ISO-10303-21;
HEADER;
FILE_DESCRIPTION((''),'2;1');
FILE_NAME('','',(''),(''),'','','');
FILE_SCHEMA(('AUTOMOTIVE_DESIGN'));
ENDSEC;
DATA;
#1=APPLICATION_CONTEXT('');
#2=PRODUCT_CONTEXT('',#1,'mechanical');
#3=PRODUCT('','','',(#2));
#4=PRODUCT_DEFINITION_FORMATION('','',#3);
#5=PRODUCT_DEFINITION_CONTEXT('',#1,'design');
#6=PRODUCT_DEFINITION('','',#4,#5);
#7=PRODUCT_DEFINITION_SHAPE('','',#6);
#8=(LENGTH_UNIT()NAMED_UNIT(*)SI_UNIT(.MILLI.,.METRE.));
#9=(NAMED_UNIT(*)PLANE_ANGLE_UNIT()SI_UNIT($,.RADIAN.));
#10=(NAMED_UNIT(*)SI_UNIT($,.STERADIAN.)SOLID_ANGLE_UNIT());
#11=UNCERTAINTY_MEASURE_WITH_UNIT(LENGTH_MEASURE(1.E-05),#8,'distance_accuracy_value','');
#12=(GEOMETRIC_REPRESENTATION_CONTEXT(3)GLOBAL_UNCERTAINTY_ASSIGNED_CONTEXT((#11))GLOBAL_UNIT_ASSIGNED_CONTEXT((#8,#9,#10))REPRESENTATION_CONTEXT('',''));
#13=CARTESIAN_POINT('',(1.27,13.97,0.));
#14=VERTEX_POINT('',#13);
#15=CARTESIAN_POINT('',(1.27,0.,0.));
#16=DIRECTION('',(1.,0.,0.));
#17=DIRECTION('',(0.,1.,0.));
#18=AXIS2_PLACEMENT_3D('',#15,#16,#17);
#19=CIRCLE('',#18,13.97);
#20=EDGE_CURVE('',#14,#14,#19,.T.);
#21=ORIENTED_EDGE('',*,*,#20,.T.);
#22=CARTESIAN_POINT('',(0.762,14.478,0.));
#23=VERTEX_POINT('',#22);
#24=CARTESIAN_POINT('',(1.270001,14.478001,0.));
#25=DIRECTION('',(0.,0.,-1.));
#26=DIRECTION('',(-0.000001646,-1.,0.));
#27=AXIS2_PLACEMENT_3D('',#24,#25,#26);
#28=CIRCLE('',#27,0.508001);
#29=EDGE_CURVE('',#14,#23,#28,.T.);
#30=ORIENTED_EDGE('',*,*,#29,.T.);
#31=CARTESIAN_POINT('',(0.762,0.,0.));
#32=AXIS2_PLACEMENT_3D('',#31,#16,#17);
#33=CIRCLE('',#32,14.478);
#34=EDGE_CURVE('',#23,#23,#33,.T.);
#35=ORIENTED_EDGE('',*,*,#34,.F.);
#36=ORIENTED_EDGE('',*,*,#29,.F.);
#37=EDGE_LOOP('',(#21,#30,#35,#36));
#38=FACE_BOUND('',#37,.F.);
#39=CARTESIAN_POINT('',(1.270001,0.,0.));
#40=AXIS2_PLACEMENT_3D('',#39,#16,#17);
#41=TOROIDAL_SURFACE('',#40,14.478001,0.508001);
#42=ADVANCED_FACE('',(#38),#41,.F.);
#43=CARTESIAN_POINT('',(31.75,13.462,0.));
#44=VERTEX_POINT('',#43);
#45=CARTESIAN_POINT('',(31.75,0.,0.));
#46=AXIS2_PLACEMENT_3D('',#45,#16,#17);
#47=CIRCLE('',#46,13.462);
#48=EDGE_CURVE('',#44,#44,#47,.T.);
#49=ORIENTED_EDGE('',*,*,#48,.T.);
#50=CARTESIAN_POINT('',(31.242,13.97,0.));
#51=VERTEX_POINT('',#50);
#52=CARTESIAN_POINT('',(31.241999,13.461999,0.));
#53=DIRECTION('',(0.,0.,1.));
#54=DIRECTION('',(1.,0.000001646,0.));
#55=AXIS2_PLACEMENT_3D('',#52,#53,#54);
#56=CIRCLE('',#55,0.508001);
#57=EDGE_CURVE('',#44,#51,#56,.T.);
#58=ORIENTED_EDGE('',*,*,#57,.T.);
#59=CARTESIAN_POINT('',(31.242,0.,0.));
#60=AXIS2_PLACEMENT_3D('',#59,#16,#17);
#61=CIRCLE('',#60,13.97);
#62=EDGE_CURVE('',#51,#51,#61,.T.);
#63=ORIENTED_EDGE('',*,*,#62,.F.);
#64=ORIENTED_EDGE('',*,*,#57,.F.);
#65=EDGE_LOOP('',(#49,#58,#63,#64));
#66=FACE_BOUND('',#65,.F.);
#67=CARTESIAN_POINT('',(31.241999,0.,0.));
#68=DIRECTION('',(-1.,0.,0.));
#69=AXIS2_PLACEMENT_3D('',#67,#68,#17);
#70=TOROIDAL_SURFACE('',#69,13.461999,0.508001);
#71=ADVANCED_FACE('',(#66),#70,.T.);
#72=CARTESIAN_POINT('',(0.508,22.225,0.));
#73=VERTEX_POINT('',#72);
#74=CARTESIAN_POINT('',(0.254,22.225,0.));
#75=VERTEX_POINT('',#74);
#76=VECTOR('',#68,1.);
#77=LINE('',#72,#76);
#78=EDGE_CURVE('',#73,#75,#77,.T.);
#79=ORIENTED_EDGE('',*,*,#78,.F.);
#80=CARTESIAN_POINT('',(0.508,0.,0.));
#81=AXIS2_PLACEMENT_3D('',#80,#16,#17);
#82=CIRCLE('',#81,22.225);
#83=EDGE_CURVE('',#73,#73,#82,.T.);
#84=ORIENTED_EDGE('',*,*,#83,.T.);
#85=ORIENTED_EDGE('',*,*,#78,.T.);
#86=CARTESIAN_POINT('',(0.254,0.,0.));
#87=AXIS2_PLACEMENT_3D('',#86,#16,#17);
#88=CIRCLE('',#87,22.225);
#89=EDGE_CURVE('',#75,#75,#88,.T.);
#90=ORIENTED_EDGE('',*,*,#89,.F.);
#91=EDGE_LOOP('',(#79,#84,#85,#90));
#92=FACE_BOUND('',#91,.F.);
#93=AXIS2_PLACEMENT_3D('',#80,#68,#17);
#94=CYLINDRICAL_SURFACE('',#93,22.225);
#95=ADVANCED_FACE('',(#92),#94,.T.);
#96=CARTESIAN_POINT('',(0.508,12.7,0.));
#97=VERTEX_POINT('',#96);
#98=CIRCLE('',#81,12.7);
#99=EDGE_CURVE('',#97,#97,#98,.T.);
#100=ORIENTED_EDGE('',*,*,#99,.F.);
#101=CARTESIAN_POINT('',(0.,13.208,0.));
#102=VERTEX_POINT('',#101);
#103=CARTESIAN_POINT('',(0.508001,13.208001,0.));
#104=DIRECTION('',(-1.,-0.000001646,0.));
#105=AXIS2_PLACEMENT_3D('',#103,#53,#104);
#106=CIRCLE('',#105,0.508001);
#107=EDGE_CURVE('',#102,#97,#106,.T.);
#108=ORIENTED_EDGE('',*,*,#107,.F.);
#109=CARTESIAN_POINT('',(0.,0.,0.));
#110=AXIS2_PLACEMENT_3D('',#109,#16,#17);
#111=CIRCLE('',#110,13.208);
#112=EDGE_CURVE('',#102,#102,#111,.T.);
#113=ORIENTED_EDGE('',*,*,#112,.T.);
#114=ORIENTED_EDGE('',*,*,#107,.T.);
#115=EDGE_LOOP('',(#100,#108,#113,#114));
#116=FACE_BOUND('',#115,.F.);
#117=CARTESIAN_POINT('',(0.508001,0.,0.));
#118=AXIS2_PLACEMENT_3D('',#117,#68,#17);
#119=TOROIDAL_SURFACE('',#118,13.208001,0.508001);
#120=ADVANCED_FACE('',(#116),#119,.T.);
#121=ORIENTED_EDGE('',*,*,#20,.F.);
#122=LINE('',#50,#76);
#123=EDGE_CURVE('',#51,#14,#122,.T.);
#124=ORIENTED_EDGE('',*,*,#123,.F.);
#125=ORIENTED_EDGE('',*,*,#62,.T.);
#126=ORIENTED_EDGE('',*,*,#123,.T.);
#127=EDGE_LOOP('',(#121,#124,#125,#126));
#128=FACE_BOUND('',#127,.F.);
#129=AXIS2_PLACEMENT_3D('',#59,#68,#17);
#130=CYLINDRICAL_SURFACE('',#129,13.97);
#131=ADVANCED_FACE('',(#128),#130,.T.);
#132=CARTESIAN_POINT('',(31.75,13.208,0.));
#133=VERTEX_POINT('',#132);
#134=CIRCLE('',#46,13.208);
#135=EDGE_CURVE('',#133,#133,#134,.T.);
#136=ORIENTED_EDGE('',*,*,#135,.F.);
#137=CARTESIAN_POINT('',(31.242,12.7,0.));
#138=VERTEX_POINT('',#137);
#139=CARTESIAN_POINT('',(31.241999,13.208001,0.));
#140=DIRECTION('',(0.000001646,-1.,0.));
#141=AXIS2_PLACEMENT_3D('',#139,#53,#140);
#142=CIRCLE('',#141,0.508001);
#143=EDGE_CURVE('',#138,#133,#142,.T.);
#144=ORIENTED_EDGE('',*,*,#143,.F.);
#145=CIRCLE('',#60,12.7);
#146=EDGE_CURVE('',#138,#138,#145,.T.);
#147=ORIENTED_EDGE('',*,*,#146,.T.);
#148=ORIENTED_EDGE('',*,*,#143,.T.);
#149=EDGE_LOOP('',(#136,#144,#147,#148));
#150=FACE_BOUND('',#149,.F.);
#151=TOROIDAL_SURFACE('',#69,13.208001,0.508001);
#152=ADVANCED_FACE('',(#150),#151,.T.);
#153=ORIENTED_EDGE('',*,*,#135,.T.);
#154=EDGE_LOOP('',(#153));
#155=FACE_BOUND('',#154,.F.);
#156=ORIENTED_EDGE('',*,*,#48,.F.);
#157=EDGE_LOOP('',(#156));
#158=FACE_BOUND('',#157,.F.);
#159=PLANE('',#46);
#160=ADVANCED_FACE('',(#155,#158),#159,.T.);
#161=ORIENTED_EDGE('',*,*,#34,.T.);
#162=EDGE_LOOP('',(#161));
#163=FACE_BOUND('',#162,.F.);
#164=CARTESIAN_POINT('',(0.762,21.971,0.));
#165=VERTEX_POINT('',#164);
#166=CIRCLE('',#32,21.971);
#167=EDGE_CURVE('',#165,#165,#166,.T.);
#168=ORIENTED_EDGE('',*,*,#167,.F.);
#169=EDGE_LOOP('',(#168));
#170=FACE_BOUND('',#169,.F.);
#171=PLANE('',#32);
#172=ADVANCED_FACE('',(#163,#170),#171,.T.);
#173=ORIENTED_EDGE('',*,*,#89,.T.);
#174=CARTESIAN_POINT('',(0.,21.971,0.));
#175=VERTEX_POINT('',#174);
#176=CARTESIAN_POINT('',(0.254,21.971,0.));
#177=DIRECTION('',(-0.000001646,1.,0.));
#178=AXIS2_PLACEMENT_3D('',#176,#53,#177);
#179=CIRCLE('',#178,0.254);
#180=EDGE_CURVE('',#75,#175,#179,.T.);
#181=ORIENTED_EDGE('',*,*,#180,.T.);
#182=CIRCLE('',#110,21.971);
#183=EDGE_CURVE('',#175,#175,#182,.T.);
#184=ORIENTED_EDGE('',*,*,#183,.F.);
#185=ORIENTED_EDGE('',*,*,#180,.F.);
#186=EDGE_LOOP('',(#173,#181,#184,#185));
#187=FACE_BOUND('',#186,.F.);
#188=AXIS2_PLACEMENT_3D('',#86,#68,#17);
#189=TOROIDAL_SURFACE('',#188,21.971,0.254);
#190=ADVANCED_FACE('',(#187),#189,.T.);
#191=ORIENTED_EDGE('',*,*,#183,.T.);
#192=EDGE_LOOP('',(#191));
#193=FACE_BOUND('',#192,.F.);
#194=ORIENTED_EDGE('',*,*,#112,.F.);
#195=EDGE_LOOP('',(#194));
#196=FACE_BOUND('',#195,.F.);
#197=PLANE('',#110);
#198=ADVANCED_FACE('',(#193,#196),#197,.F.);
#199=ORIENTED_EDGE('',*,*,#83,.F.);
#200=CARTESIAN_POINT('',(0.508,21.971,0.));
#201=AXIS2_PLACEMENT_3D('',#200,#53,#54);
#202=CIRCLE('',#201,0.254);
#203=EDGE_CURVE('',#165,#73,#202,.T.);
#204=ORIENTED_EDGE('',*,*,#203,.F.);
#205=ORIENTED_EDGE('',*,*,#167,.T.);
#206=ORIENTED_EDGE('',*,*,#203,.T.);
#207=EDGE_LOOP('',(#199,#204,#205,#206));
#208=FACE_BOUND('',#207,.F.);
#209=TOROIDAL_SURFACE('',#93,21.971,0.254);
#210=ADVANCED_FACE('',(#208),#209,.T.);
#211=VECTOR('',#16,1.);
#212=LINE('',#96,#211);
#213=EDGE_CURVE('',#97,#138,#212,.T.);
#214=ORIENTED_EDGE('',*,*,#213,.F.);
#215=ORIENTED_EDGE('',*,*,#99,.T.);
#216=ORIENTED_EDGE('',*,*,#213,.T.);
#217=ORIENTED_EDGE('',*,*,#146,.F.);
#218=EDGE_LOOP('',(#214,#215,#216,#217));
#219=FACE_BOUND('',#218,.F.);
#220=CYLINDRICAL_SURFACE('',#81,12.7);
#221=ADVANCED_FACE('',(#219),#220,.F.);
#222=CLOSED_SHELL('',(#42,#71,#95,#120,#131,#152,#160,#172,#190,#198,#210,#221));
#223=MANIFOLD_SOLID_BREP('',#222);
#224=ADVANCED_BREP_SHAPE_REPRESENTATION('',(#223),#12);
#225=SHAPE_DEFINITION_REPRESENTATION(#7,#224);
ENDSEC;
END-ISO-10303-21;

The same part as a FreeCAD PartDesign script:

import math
import FreeCAD as App
import Part
import Sketcher

V = App.Vector
Q = App.Units.Quantity

doc = App.newDocument("Part")
body = doc.addObject("PartDesign::Body", "Body")

sketch1 = body.newObject("Sketcher::SketchObject", "Sketch")
sketch1.AttachmentSupport = (doc.getObject("XY_Plane"), [""])
sketch1.MapMode = "FlatFace"
sketch1.addGeometry(Part.ArcOfCircle(Part.Circle(V(31.241999, 13.208001, 0), V(0, 0, 1), 0.508001), math.radians(-89.999906), math.radians(-0.000094)), False)
sketch1.addGeometry(Part.LineSegment(V(31.75, 13.208, 0), V(31.75, 13.462, 0)), False)
sketch1.addGeometry(Part.ArcOfCircle(Part.Circle(V(31.241999, 13.461999, 0), V(0, 0, 1), 0.508001), math.radians(0.000094), math.radians(89.999906)), False)
sketch1.addGeometry(Part.LineSegment(V(31.242, 13.97, 0), V(1.27, 13.97, 0)), False)
sketch1.addGeometry(Part.ArcOfCircle(Part.Circle(V(1.270001, 14.478001, 0), V(0, 0, 1), 0.508001), math.radians(-179.999906), math.radians(-90.000094)), False)
sketch1.addGeometry(Part.LineSegment(V(0.762, 14.478, 0), V(0.762, 21.971, 0)), False)
sketch1.addGeometry(Part.ArcOfCircle(Part.Circle(V(0.508, 21.971, 0), V(0, 0, 1), 0.254), math.radians(0.000094), math.radians(89.999906)), False)
sketch1.addGeometry(Part.LineSegment(V(0.508, 22.225, 0), V(0.254, 22.225, 0)), False)
sketch1.addGeometry(Part.ArcOfCircle(Part.Circle(V(0.254, 21.971, 0), V(0, 0, 1), 0.254), math.radians(90.000094), math.radians(179.999906)), False)
sketch1.addGeometry(Part.LineSegment(V(0, 21.971, 0), V(0, 13.208, 0)), False)
sketch1.addGeometry(Part.ArcOfCircle(Part.Circle(V(0.508001, 13.208001, 0), V(0, 0, 1), 0.508001), math.radians(-179.999906), math.radians(-90.000094)), False)
sketch1.addGeometry(Part.LineSegment(V(0.508, 12.7, 0), V(31.242, 12.7, 0)), False)
sketch1.addConstraint(Sketcher.Constraint("Tangent", 0, 2, 1, 1))
sketch1.addConstraint(Sketcher.Constraint("Tangent", 1, 2, 2, 1))
sketch1.addConstraint(Sketcher.Constraint("Tangent", 2, 2, 3, 1))
sketch1.addConstraint(Sketcher.Constraint("Tangent", 3, 2, 4, 2))
sketch1.addConstraint(Sketcher.Constraint("Tangent", 4, 1, 5, 1))
sketch1.addConstraint(Sketcher.Constraint("Tangent", 5, 2, 6, 1))
sketch1.addConstraint(Sketcher.Constraint("Tangent", 6, 2, 7, 1))
sketch1.addConstraint(Sketcher.Constraint("Tangent", 7, 2, 8, 1))
sketch1.addConstraint(Sketcher.Constraint("Tangent", 8, 2, 9, 1))
sketch1.addConstraint(Sketcher.Constraint("Tangent", 9, 2, 10, 1))
sketch1.addConstraint(Sketcher.Constraint("Tangent", 10, 2, 11, 1))
sketch1.addConstraint(Sketcher.Constraint("Tangent", 11, 2, 0, 1))
sketch1.addConstraint(Sketcher.Constraint("Vertical", 1))
sketch1.addConstraint(Sketcher.Constraint("Horizontal", 3))
sketch1.addConstraint(Sketcher.Constraint("Vertical", 5))
sketch1.addConstraint(Sketcher.Constraint("Horizontal", 7))
sketch1.addConstraint(Sketcher.Constraint("Vertical", 9))
sketch1.addConstraint(Sketcher.Constraint("Horizontal", 11))
sketch1.addConstraint(Sketcher.Constraint("Equal", 0, 2))
sketch1.addConstraint(Sketcher.Constraint("Equal", 2, 4))
sketch1.addConstraint(Sketcher.Constraint("Equal", 6, 8))
sketch1.addConstraint(Sketcher.Constraint("Equal", 4, 10))
sketch1.addConstraint(Sketcher.Constraint("PointOnObject", 8, 2, -2))
sketch1.addConstraint(Sketcher.Constraint("Vertical", 6, 3, 10, 3))
sketch1.addConstraint(Sketcher.Constraint("Equal", 7, 1))
sketch1.addConstraint(Sketcher.Constraint("Radius", 0, Q("0.02 in")))
sketch1.addConstraint(Sketcher.Constraint("Radius", 6, Q("0.01 in")))
sketch1.addConstraint(Sketcher.Constraint("DistanceX", 3, 2, 3, 1, Q("1.18 in")))
sketch1.addConstraint(Sketcher.Constraint("DistanceY", -1, 1, 10, 2, Q("0.5 in")))
sketch1.addConstraint(Sketcher.Constraint("DistanceY", 5, 1, 5, 2, Q("0.295 in")))
revolution = body.newObject("PartDesign::Revolution", "Revolution")
revolution.Profile = sketch1
revolution.ReferenceAxis = (sketch1, ["H_Axis"])
revolution.Angle = 360

doc.recompute()
